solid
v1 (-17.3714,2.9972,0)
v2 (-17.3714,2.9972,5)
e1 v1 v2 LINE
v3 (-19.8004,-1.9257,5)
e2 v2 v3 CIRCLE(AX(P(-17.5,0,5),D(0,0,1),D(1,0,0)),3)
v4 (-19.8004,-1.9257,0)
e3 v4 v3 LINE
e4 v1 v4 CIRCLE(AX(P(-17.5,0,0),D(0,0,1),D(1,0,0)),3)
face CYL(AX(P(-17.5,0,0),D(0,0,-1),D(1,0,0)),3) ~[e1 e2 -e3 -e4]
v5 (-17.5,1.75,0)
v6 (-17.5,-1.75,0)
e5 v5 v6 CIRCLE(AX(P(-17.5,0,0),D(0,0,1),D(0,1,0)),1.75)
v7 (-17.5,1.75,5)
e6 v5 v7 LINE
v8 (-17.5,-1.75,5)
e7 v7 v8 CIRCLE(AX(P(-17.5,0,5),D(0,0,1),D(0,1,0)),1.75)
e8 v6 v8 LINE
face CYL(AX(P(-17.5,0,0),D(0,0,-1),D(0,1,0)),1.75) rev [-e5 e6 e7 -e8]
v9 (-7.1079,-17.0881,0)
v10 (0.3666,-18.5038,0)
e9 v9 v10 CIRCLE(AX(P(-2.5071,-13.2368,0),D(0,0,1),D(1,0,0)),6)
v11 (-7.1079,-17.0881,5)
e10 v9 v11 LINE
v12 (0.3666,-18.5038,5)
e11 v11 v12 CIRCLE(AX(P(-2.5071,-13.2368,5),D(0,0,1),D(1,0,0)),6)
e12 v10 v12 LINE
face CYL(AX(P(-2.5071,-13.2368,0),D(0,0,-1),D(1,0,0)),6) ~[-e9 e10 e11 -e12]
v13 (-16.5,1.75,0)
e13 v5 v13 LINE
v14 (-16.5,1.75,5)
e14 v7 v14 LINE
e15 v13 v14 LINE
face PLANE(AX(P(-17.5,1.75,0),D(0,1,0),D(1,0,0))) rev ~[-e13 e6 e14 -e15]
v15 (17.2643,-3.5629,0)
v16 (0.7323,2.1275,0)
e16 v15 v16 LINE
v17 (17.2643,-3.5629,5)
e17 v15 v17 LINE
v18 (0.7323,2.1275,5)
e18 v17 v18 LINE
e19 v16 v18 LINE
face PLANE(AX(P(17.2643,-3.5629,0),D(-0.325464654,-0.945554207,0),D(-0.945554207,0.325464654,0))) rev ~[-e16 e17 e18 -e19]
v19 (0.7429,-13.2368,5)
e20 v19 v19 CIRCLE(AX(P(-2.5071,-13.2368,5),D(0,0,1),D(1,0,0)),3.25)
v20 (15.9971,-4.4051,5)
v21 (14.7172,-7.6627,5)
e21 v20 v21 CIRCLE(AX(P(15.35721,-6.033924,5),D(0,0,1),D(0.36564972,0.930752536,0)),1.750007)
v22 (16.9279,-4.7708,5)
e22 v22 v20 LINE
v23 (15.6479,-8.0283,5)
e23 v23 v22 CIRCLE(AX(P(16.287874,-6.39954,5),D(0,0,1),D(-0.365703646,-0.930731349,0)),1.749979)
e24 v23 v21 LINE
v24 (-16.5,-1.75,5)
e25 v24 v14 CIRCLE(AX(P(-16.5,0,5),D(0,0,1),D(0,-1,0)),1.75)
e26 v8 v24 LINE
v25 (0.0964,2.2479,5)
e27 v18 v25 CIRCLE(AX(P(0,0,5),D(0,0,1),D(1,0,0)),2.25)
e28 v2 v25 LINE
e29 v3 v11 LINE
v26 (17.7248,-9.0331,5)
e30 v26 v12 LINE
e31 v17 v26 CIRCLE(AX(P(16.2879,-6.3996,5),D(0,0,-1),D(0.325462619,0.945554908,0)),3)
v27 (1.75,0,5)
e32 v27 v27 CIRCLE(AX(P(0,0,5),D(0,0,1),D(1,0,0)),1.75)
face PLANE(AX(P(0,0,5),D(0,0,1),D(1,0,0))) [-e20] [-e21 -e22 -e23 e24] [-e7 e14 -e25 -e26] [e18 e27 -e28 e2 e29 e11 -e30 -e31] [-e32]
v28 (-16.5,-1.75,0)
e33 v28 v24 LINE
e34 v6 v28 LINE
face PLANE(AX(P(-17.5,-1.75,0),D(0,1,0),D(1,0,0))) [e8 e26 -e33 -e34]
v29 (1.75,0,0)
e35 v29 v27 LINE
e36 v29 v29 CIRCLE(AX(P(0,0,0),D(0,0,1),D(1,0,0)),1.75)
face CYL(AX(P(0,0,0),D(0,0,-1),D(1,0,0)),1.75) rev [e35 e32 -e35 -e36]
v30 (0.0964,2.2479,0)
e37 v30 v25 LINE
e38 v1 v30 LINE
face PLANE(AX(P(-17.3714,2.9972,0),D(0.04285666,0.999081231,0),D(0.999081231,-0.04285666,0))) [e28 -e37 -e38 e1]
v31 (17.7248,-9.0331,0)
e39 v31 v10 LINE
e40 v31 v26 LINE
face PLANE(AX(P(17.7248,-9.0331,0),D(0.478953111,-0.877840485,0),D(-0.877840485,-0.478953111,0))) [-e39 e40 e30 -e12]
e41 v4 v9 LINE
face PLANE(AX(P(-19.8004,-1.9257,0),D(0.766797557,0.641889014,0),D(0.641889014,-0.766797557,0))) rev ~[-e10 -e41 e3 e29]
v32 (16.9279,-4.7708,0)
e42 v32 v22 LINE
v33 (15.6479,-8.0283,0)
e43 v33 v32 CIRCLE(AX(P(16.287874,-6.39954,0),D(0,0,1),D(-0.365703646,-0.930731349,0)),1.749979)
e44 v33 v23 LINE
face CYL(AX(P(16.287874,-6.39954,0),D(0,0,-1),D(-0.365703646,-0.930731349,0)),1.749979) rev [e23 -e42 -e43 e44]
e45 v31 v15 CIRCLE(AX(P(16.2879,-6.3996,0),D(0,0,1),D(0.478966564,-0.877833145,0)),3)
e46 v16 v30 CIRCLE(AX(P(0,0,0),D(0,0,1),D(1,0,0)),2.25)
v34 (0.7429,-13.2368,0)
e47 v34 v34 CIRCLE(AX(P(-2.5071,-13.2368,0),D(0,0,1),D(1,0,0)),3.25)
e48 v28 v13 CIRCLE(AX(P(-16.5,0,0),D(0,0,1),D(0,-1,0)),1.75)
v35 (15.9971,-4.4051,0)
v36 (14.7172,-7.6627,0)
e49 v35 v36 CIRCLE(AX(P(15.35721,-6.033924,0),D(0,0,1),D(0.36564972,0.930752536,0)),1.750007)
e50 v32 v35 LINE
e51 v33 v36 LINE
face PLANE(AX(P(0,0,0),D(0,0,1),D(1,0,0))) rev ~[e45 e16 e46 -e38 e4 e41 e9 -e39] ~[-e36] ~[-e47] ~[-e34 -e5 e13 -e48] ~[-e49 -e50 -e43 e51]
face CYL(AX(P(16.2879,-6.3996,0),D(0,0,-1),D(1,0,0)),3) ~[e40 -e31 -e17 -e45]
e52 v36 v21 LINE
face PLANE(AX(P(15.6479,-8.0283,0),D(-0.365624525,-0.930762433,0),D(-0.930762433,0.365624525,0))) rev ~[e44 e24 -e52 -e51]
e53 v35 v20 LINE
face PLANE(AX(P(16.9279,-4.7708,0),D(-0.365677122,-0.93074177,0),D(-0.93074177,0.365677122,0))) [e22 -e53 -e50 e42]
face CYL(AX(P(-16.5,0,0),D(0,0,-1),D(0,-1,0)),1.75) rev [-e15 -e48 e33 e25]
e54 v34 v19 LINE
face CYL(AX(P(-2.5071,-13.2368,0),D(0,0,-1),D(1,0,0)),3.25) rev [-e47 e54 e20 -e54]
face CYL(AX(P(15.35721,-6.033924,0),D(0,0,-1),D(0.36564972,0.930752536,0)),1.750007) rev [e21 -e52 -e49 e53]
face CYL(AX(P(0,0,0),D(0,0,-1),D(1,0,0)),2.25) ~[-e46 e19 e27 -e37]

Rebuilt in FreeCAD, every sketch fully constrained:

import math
import FreeCAD as App
import Part
import Sketcher
Q = App.Units.Quantity

doc = App.newDocument("Part")
body = doc.addObject("PartDesign::Body", "Body")

sketch1 = body.newObject("Sketcher::SketchObject", "Sketch")
sketch1.AttachmentSupport = (doc.getObject("XY_Plane"), [""])
sketch1.MapMode = "FlatFace"
sketch1.addGeometry(Part.ArcOfCircle(Part.Circle(App.Vector(16.3, -6.4, 0), App.Vector(0, 0, 1), 3), math.radians(-61), math.radians(71)), False)
sketch1.addGeometry(Part.LineSegment(App.Vector(17.3, -3.6, 0), App.Vector(0.7, 2.1, 0)), False)
sketch1.addGeometry(Part.ArcOfCircle(Part.Circle(App.Vector(0, 0, 0), App.Vector(0, 0, 1), 2.2), math.radians(71.01), math.radians(87.54)), False)
sketch1.addGeometry(Part.LineSegment(App.Vector(0.1, 2.2, 0), App.Vector(-17.4, 3, 0)), False)
sketch1.addGeometry(Part.ArcOfCircle(Part.Circle(App.Vector(-17.5, 0, 0), App.Vector(0, 0, 1), 3), math.radians(88), math.radians(220)), False)
sketch1.addGeometry(Part.LineSegment(App.Vector(-19.8, -1.9, 0), App.Vector(-7.1, -17.1, 0)), False)
sketch1.addGeometry(Part.ArcOfCircle(Part.Circle(App.Vector(-2.5, -13.2, 0), App.Vector(0, 0, 1), 6), math.radians(-140), math.radians(-61)), False)
sketch1.addGeometry(Part.LineSegment(App.Vector(0.4, -18.5, 0), App.Vector(17.7, -9, 0)), False)
sketch1.addGeometry(Part.ArcOfCircle(Part.Circle(App.Vector(15.4, -6, 0), App.Vector(0, 0, 1), 1.7), math.radians(69), math.radians(249)), False)
sketch1.addGeometry(Part.LineSegment(App.Vector(16, -4.4, 0), App.Vector(16.9, -4.8, 0)), False)
sketch1.addGeometry(Part.ArcOfCircle(Part.Circle(App.Vector(16.3, -6.4, 0), App.Vector(0, 0, 1), 1.7), math.radians(-111), math.radians(69)), False)
sketch1.addGeometry(Part.LineSegment(App.Vector(15.6, -8, 0), App.Vector(14.7, -7.7, 0)), False)
sketch1.addGeometry(Part.Circle(App.Vector(-2.5, -13.2, 0), App.Vector(0, 0, 1), 3.2), False)
sketch1.addGeometry(Part.LineSegment(App.Vector(-17.5, 1.8, 0), App.Vector(-16.5, 1.8, 0)), False)
sketch1.addGeometry(Part.ArcOfCircle(Part.Circle(App.Vector(-16.5, 0, 0), App.Vector(0, 0, 1), 1.8), math.radians(-90), math.radians(90)), False)
sketch1.addGeometry(Part.LineSegment(App.Vector(-16.5, -1.8, 0), App.Vector(-17.5, -1.8, 0)), False)
sketch1.addGeometry(Part.ArcOfCircle(Part.Circle(App.Vector(-17.5, 0, 0), App.Vector(0, 0, 1), 1.8), math.radians(90), math.radians(270)), False)
sketch1.addGeometry(Part.Circle(App.Vector(0, 0, 0), App.Vector(0, 0, 1), 1.8), False)
sketch1.addConstraint(Sketcher.Constraint("Tangent", 0, 2, 1, 1))
sketch1.addConstraint(Sketcher.Constraint("Tangent", 1, 2, 2, 1))
sketch1.addConstraint(Sketcher.Constraint("Tangent", 2, 2, 3, 1))
sketch1.addConstraint(Sketcher.Constraint("Tangent", 3, 2, 4, 1))
sketch1.addConstraint(Sketcher.Constraint("Tangent", 4, 2, 5, 1))
sketch1.addConstraint(Sketcher.Constraint("Tangent", 5, 2, 6, 1))
sketch1.addConstraint(Sketcher.Constraint("Tangent", 6, 2, 7, 1))
sketch1.addConstraint(Sketcher.Constraint("Tangent", 7, 2, 0, 1))
sketch1.addConstraint(Sketcher.Constraint("Tangent", 8, 1, 9, 1))
sketch1.addConstraint(Sketcher.Constraint("Tangent", 9, 2, 10, 2))
sketch1.addConstraint(Sketcher.Constraint("Tangent", 10, 1, 11, 1))
sketch1.addConstraint(Sketcher.Constraint("Tangent", 11, 2, 8, 2))
sketch1.addConstraint(Sketcher.Constraint("Tangent", 13, 2, 14, 2))
sketch1.addConstraint(Sketcher.Constraint("Tangent", 14, 1, 15, 1))
sketch1.addConstraint(Sketcher.Constraint("Tangent", 15, 2, 16, 2))
sketch1.addConstraint(Sketcher.Constraint("Tangent", 16, 1, 13, 1))
sketch1.addConstraint(Sketcher.Constraint("Horizontal", 13))
sketch1.addConstraint(Sketcher.Constraint("Horizontal", 15))
sketch1.addConstraint(Sketcher.Constraint("Coincident", 2, 3, -1, 1))
sketch1.addConstraint(Sketcher.Constraint("Coincident", 17, 3, -1, 1))
sketch1.addConstraint(Sketcher.Constraint("Coincident", 10, 3, 0, 3))
sketch1.addConstraint(Sketcher.Constraint("Coincident", 12, 3, 6, 3))
sketch1.addConstraint(Sketcher.Constraint("Coincident", 16, 3, 4, 3))
sketch1.addConstraint(Sketcher.Constraint("Equal", 0, 4))
sketch1.addConstraint(Sketcher.Constraint("Equal", 8, 10))
sketch1.addConstraint(Sketcher.Constraint("Equal", 10, 14))
sketch1.addConstraint(Sketcher.Constraint("Equal", 16, 17))
sketch1.addConstraint(Sketcher.Constraint("PointOnObject", 4, 3, -1))
sketch1.addConstraint(Sketcher.Constraint("Equal", 1, 3))
sketch1.addConstraint(Sketcher.Constraint("Equal", 5, 7))
sketch1.addConstraint(Sketcher.Constraint("Radius", 0, Q("3 mm")))
sketch1.addConstraint(Sketcher.Constraint("Radius", 6, Q("6 mm")))
sketch1.addConstraint(Sketcher.Constraint("Diameter", 12, Q("6.5 mm")))
sketch1.addConstraint(Sketcher.Constraint("Diameter", 17, Q("3.5 mm")))
sketch1.addConstraint(Sketcher.Constraint("Radius", 2, Q("2.25 mm")))
sketch1.addConstraint(Sketcher.Constraint("DistanceX", 13, 1, 13, 2, Q("1 mm")))
sketch1.addConstraint(Sketcher.Constraint("Distance", 9, Q("1 mm")))
sketch1.addConstraint(Sketcher.Constraint("DistanceX", 4, 3, -1, 1, Q("17.5 mm")))
sketch1.addConstraint(Sketcher.Constraint("Angle", 9, Q("-21.4493 deg")))
sketch1.addConstraint(Sketcher.Constraint("DistanceX", -1, 1, 0, 3, Q("16.288 mm")))
sketch1.addConstraint(Sketcher.Constraint("DistanceX", 6, 3, -1, 1, Q("2.507 mm")))
pad1 = body.newObject("PartDesign::Pad", "Pad")
pad1.Profile = sketch1
pad1.Length = 5

doc.recompute()
